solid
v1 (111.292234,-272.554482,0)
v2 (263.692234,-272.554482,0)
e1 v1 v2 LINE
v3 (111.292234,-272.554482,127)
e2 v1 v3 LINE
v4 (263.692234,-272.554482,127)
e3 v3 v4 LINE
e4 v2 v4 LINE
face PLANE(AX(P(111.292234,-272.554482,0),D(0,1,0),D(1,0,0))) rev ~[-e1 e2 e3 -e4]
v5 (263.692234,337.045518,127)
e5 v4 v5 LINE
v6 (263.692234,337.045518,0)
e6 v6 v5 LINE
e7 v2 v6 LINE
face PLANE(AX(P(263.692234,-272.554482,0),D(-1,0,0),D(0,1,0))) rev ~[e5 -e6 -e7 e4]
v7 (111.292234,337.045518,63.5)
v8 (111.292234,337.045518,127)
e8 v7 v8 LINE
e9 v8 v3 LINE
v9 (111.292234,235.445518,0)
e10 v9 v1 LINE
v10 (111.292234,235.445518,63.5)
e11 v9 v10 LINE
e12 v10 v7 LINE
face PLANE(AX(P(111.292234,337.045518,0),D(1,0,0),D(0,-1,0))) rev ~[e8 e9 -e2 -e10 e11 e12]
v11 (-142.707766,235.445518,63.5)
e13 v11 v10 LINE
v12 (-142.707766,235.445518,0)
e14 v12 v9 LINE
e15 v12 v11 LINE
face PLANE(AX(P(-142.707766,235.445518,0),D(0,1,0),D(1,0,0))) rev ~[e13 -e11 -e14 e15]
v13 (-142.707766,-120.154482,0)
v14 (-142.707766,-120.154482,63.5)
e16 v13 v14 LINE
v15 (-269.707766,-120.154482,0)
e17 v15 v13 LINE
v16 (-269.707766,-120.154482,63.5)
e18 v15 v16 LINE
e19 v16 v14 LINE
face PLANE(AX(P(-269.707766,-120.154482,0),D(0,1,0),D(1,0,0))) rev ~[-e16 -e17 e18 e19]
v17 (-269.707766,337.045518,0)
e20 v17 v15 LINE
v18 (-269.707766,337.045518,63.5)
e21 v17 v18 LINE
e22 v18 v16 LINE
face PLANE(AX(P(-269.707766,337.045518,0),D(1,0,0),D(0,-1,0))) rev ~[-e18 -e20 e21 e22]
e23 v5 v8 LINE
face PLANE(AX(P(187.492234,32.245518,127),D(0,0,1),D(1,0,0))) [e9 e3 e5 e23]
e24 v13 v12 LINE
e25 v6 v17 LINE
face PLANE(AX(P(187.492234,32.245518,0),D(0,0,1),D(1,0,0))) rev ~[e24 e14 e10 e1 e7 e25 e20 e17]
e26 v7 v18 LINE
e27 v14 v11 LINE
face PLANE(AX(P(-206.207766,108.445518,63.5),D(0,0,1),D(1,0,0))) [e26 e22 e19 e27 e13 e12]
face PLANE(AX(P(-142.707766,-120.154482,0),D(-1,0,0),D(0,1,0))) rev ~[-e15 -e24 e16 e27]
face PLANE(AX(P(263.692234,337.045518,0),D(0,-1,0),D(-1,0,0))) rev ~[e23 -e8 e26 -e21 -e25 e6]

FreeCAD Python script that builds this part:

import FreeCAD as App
import Part
import Sketcher
Q = App.Units.Quantity

doc = App.newDocument("Part")
body = doc.addObject("PartDesign::Body", "Body")

# Sketch on XY plane
sketch1 = doc.addObject("Sketcher::SketchObject", "Sketch")
body.addObject(sketch1)
sketch1.AttachmentSupport = (doc.XY_Plane, [""])
sketch1.MapMode = "FlatFace"
sketch1.addGeometry(Part.LineSegment(App.Vector(-270, 337, 0), App.Vector(-270, -120, 0)), False)
sketch1.addGeometry(Part.LineSegment(App.Vector(-270, -120, 0), App.Vector(-143, -120, 0)), False)
sketch1.addGeometry(Part.LineSegment(App.Vector(-143, -120, 0), App.Vector(-143, 235, 0)), False)
sketch1.addGeometry(Part.LineSegment(App.Vector(-143, 235, 0), App.Vector(111, 235, 0)), False)
sketch1.addGeometry(Part.LineSegment(App.Vector(111, 235, 0), App.Vector(111, 337, 0)), False)
sketch1.addGeometry(Part.LineSegment(App.Vector(111, 337, 0), App.Vector(-270, 337, 0)), False)
sketch1.addConstraint(Sketcher.Constraint("Coincident", 0, 2, 1, 1))
sketch1.addConstraint(Sketcher.Constraint("Coincident", 1, 2, 2, 1))
sketch1.addConstraint(Sketcher.Constraint("Coincident", 2, 2, 3, 1))
sketch1.addConstraint(Sketcher.Constraint("Coincident", 3, 2, 4, 1))
sketch1.addConstraint(Sketcher.Constraint("Coincident", 4, 2, 5, 1))
sketch1.addConstraint(Sketcher.Constraint("Coincident", 5, 2, 0, 1))
sketch1.addConstraint(Sketcher.Constraint("Vertical", 0))
sketch1.addConstraint(Sketcher.Constraint("Horizontal", 1))
sketch1.addConstraint(Sketcher.Constraint("Vertical", 2))
sketch1.addConstraint(Sketcher.Constraint("Horizontal", 3))
sketch1.addConstraint(Sketcher.Constraint("Vertical", 4))
sketch1.addConstraint(Sketcher.Constraint("Horizontal", 5))
sketch1.addConstraint(Sketcher.Constraint("DistanceX", 1, 1, 1, 2, Q("5 in")))
sketch1.addConstraint(Sketcher.Constraint("DistanceX", 3, 1, 3, 2, Q("10 in")))
sketch1.addConstraint(Sketcher.Constraint("DistanceY", 0, 2, 0, 1, Q("18 in")))
sketch1.addConstraint(Sketcher.Constraint("DistanceY", 2, 1, 2, 2, Q("14 in")))
sketch1.addConstraint(Sketcher.Constraint("DistanceY", 0, 2, -1, 1, Q("120.154482 mm")))
sketch1.addConstraint(Sketcher.Constraint("DistanceX", 0, 2, -1, 1, Q("269.707766 mm")))
pad1 = doc.addObject("PartDesign::Pad", "Pad")
body.addObject(pad1)
pad1.Profile = sketch1
pad1.Length = Q("2.5 in")

# Sketch on XY plane
sketch2 = doc.addObject("Sketcher::SketchObject", "Sketch001")
body.addObject(sketch2)
sketch2.AttachmentSupport = (doc.XY_Plane, [""])
sketch2.MapMode = "FlatFace"
sketch2.addGeometry(Part.LineSegment(App.Vector(264, 337, 0), App.Vector(111, 337, 0)), False)
sketch2.addGeometry(Part.LineSegment(App.Vector(111, 337, 0), App.Vector(111, -273, 0)), False)
sketch2.addGeometry(Part.LineSegment(App.Vector(111, -273, 0), App.Vector(264, -273, 0)), False)
sketch2.addGeometry(Part.LineSegment(App.Vector(264, -273, 0), App.Vector(264, 337, 0)), False)
sketch2.addConstraint(Sketcher.Constraint("Coincident", 0, 2, 1, 1))
sketch2.addConstraint(Sketcher.Constraint("Coincident", 1, 2, 2, 1))
sketch2.addConstraint(Sketcher.Constraint("Coincident", 2, 2, 3, 1))
sketch2.addConstraint(Sketcher.Constraint("Coincident", 3, 2, 0, 1))
sketch2.addConstraint(Sketcher.Constraint("Horizontal", 0))
sketch2.addConstraint(Sketcher.Constraint("Vertical", 1))
sketch2.addConstraint(Sketcher.Constraint("Horizontal", 2))
sketch2.addConstraint(Sketcher.Constraint("Vertical", 3))
sketch2.addConstraint(Sketcher.Constraint("DistanceX", 0, 2, 0, 1, Q("6 in")))
sketch2.addConstraint(Sketcher.Constraint("DistanceY", 1, 2, 1, 1, Q("24 in")))
sketch2.addConstraint(Sketcher.Constraint("DistanceY", -1, 1, 0, 2, Q("337.045518 mm")))
sketch2.addConstraint(Sketcher.Constraint("DistanceX", -1, 1, 0, 2, Q("111.292234 mm")))
pad2 = doc.addObject("PartDesign::Pad", "Pad001")
body.addObject(pad2)
pad2.Profile = sketch2
pad2.Length = Q("5 in")

doc.recompute()
